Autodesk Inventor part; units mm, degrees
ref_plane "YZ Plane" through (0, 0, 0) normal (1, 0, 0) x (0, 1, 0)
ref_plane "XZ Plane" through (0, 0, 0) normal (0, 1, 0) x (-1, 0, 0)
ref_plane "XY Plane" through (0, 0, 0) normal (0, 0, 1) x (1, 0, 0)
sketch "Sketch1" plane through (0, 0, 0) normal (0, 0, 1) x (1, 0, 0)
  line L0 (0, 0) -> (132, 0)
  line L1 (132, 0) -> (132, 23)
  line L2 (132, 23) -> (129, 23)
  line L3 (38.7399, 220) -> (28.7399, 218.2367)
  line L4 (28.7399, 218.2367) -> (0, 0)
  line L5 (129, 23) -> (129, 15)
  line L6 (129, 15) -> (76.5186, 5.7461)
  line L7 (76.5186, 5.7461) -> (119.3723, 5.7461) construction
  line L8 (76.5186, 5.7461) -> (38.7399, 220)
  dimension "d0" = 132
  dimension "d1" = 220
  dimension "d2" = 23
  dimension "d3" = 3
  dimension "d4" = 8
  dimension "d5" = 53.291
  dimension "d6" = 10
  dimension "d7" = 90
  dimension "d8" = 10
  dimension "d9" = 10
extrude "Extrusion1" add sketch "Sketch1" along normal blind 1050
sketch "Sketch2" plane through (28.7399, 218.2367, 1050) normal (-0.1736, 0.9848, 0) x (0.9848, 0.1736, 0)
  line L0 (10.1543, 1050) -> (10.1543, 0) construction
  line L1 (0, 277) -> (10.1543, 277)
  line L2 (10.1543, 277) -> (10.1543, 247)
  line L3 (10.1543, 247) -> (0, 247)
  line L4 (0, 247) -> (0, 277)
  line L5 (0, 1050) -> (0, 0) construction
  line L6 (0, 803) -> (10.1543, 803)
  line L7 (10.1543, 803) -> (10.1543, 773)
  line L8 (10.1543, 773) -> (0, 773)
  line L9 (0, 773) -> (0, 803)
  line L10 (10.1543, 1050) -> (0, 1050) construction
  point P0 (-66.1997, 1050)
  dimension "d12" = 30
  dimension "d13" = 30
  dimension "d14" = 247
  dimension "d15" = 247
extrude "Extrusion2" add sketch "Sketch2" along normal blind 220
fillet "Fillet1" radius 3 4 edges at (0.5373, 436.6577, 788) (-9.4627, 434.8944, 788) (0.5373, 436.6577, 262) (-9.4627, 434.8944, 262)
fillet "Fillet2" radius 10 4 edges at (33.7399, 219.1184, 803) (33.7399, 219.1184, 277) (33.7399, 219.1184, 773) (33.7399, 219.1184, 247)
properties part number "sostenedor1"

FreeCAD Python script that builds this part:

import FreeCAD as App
import Part
import Sketcher
from FreeCAD import Vector
Q = App.Units.Quantity


def edges_at(feature, points):
    """Names of the edges that pass closest to the given points."""
    edges = feature.Shape.Edges
    near = lambda p: min(range(len(edges)), key=lambda i: edges[i].distToShape(Part.Vertex(*p))[0])
    return sorted({f"Edge{near(p) + 1}" for p in points})


def add_polygon(sketch, points):
    """Adds a closed chain of lines whose ends are joined by coincident constraints."""
    first, n = sketch.GeometryCount, len(points)
    for a, b in zip(points, points[1:] + points[:1]):
        sketch.addGeometry(Part.LineSegment(App.Vector(*a, 0), App.Vector(*b, 0)), False)
    for i in range(n):
        sketch.addConstraint(Sketcher.Constraint("Coincident", first + i, 2, first + (i + 1) % n, 1))

doc = App.newDocument("Part")
body = doc.addObject("PartDesign::Body", "Body")

# Sketch on XY plane
sketch1 = body.newObject("Sketcher::SketchObject", "Sketch")
sketch1.AttachmentSupport = (doc.getObject("XY_Plane"), [""])
sketch1.MapMode = "FlatFace"
add_polygon(sketch1, [(28.7, 218.2), (0, 0), (132, 0), (132, 23), (129, 23), (129, 15), (76.5, 5.7), (38.7, 220)])  # lines 0-7
sketch1.addConstraint(Sketcher.Constraint("Horizontal", 1))
sketch1.addConstraint(Sketcher.Constraint("Vertical", 2))
sketch1.addConstraint(Sketcher.Constraint("Horizontal", 3))
sketch1.addConstraint(Sketcher.Constraint("Vertical", 4))
sketch1.addConstraint(Sketcher.Constraint("Coincident", 0, 2, -1, 1))
sketch1.addConstraint(Sketcher.Constraint("Perpendicular", 5, 6))
sketch1.addConstraint(Sketcher.Constraint("Perpendicular", 6, 7))
sketch1.addConstraint(Sketcher.Constraint("DistanceX", 1, 1, 1, 2, Q("132 mm")))
sketch1.addConstraint(Sketcher.Constraint("DistanceX", 3, 2, 3, 1, Q("3 mm")))
sketch1.addConstraint(Sketcher.Constraint("DistanceY", 2, 1, 2, 2, Q("23 mm")))
sketch1.addConstraint(Sketcher.Constraint("DistanceY", 4, 2, 4, 1, Q("8 mm")))
sketch1.addConstraint(Sketcher.Constraint("DistanceY", -1, 1, 6, 2, Q("220 mm")))
sketch1.addConstraint(Sketcher.Constraint("DistanceX", 7, 2, 6, 2, Q("10 mm")))
sketch1.addConstraint(Sketcher.Constraint("Angle", 5, Q("-170 deg")))
sketch1.addConstraint(Sketcher.Constraint("Distance", 5, Q("53.291 mm")))
pad1 = body.newObject("PartDesign::Pad", "Pad")
pad1.Profile = sketch1
pad1.Length = 1050

# Sketch on an angled plane
sketch2 = body.newObject("Sketcher::SketchObject", "Sketch001")
sketch2.Placement = App.Placement(Vector(28.7399, 218.2367, 1050), App.Rotation(Vector(0.984807753, 0.173648178, 0), Vector(0, 0, -1), Vector(-0.173648178, 0.984807753, 0), "ZXY"))
add_polygon(sketch2, [(10, 277), (0, 277), (0, 247), (10, 247)])  # lines 0-3
add_polygon(sketch2, [(10, 803), (0, 803), (0, 773), (10, 773)])  # lines 4-7
sketch2.addConstraint(Sketcher.Constraint("Horizontal", 0))
sketch2.addConstraint(Sketcher.Constraint("Vertical", 1))
sketch2.addConstraint(Sketcher.Constraint("Horizontal", 2))
sketch2.addConstraint(Sketcher.Constraint("Vertical", 3))
sketch2.addConstraint(Sketcher.Constraint("Horizontal", 4))
sketch2.addConstraint(Sketcher.Constraint("Vertical", 5))
sketch2.addConstraint(Sketcher.Constraint("Horizontal", 6))
sketch2.addConstraint(Sketcher.Constraint("Vertical", 7))
sketch2.addConstraint(Sketcher.Constraint("PointOnObject", 0, 2, -2))
sketch2.addConstraint(Sketcher.Constraint("PointOnObject", 4, 2, -2))
sketch2.addConstraint(Sketcher.Constraint("Vertical", 3, 2, 6, 2))
sketch2.addConstraint(Sketcher.Constraint("Equal", 3, 5))
sketch2.addConstraint(Sketcher.Constraint("DistanceY", 1, 2, 1, 1, Q("30 mm")))
sketch2.addConstraint(Sketcher.Constraint("DistanceY", -1, 1, 1, 2, Q("247 mm")))
sketch2.addConstraint(Sketcher.Constraint("DistanceY", -1, 1, 4, 2, Q("803 mm")))
sketch2.addConstraint(Sketcher.Constraint("DistanceX", 0, 2, 0, 1, Q("10.1543 mm")))
pad2 = body.newObject("PartDesign::Pad", "Pad001")
pad2.Profile = sketch2
pad2.Length = 220
doc.recompute()

fillet = body.newObject("PartDesign::Fillet", "Fillet")
fillet.Base = (pad2, edges_at(pad2, [
    (0.537, 436.658, 788),
    (-9.463, 434.894, 788),
    (0.537, 436.658, 262),
    (-9.463, 434.894, 262),
]))
fillet.Radius = 3
doc.recompute()

fillet2 = body.newObject("PartDesign::Fillet", "Fillet001")
fillet2.Base = (fillet, edges_at(fillet, [
    (33.74, 219.118, 803),
    (33.74, 219.118, 277),
    (33.74, 219.118, 773),
    (33.74, 219.118, 247),
]))
fillet2.Radius = 10

doc.recompute()
